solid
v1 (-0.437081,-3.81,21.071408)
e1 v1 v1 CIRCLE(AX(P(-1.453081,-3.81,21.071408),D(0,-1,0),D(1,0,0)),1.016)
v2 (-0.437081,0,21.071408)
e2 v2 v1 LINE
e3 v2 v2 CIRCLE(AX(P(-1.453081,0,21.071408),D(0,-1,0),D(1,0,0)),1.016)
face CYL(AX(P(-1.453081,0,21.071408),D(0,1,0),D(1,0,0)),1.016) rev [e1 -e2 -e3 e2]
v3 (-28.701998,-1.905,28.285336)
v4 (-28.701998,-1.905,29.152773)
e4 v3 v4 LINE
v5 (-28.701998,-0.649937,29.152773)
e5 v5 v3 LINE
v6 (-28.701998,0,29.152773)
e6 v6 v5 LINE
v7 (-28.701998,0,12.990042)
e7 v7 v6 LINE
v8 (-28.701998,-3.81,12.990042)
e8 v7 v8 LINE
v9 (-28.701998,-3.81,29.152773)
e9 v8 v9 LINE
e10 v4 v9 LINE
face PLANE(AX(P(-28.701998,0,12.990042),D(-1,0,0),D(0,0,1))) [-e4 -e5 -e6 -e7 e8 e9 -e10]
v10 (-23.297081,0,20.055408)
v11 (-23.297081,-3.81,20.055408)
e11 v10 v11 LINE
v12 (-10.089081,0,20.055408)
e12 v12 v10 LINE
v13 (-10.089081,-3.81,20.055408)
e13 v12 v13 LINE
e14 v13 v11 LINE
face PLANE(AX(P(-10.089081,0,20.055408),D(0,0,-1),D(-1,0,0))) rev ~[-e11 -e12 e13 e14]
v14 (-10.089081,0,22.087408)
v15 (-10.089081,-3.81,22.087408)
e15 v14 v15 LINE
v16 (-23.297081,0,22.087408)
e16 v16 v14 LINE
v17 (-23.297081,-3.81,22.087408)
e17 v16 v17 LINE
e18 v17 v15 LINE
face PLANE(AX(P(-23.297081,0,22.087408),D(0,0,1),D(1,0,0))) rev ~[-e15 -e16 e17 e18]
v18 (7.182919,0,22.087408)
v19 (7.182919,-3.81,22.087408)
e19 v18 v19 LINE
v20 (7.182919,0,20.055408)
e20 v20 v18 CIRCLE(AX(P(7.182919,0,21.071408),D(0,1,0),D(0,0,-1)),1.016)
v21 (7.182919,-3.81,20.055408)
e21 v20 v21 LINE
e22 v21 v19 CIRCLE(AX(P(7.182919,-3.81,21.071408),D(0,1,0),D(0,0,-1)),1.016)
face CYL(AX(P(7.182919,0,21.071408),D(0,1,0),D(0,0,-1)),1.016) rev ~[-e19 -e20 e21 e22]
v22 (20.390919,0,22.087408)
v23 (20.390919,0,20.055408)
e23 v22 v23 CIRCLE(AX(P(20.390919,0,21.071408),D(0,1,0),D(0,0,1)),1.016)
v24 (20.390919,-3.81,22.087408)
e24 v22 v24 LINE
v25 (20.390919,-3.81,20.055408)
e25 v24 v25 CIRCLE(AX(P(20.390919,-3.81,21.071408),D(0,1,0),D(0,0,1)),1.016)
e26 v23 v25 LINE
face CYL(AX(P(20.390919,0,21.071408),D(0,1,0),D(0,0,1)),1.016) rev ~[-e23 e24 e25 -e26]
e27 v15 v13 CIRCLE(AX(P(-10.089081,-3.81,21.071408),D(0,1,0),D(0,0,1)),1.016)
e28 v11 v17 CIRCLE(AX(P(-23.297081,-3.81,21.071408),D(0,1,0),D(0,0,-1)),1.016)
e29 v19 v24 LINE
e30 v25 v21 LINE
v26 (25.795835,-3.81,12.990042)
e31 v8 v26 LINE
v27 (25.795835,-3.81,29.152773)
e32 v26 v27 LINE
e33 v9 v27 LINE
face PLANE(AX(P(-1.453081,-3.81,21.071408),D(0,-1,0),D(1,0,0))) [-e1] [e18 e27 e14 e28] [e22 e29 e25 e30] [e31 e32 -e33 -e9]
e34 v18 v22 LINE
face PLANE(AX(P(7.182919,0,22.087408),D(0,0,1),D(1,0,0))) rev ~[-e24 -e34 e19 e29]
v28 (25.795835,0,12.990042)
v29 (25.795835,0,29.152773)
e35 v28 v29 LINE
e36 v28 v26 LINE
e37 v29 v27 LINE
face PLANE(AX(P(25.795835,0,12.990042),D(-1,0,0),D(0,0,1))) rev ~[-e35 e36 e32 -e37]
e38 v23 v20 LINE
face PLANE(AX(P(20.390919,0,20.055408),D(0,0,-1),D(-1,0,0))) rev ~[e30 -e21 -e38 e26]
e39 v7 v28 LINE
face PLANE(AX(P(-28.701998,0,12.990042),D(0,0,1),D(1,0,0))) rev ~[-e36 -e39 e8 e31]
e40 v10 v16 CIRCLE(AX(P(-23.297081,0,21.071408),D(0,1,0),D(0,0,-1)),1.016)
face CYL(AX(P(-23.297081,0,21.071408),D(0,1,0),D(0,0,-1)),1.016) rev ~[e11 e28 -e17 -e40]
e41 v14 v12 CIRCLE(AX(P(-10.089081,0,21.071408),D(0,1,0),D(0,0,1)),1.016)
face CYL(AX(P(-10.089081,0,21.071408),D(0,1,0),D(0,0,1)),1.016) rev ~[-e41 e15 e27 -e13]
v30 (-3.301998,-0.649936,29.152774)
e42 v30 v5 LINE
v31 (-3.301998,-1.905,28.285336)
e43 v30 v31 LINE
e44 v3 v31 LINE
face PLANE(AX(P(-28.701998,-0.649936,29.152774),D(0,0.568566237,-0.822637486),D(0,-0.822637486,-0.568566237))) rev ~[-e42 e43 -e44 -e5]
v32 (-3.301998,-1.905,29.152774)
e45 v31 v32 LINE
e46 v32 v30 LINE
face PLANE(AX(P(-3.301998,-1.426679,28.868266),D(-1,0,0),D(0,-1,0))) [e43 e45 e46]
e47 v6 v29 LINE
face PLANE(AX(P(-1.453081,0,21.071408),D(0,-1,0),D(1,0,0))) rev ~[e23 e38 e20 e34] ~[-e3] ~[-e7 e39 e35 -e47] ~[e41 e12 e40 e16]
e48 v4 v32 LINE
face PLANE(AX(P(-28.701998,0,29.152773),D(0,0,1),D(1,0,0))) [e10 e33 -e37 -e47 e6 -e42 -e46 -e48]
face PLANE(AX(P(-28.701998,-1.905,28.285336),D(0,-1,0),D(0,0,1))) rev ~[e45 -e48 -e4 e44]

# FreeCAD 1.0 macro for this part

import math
import FreeCAD as App
import Part
import Sketcher
Q = App.Units.Quantity


def add_polygon(sketch, points):
    """Adds a closed chain of lines whose ends are joined by coincident constraints."""
    first, n = sketch.GeometryCount, len(points)
    for a, b in zip(points, points[1:] + points[:1]):
        sketch.addGeometry(Part.LineSegment(App.Vector(*a, 0), App.Vector(*b, 0)), False)
    for i in range(n):
        sketch.addConstraint(Sketcher.Constraint("Coincident", first + i, 2, first + (i + 1) % n, 1))

doc = App.newDocument("Part")
body = doc.addObject("PartDesign::Body", "Body")

# Sketch on XZ plane
sketch1 = body.newObject("Sketcher::SketchObject", "Sketch")
sketch1.AttachmentSupport = (doc.getObject("XZ_Plane"), [""])
sketch1.MapMode = "FlatFace"
add_polygon(sketch1, [(-28.7, 29.2), (-28.7, 13), (25.8, 13), (25.8, 29.2)])  # lines 0-3
sketch1.addGeometry(Part.LineSegment(App.Vector(-10.1, 20.1, 0), App.Vector(-23.3, 20.1, 0)), False)  # 4
sketch1.addGeometry(Part.ArcOfCircle(Part.Circle(App.Vector(-23.3, 21.1, 0), App.Vector(0, 0, 1), 1), math.radians(90), math.radians(270)), False)  # 5
sketch1.addGeometry(Part.LineSegment(App.Vector(-23.3, 22.1, 0), App.Vector(-10.1, 22.1, 0)), False)  # 6
sketch1.addGeometry(Part.ArcOfCircle(Part.Circle(App.Vector(-10.1, 21.1, 0), App.Vector(0, 0, 1), 1), math.radians(-90), math.radians(90)), False)  # 7
sketch1.addGeometry(Part.Circle(App.Vector(-1.5, 21.1, 0), App.Vector(0, 0, 1), 1), False)  # 8
sketch1.addGeometry(Part.LineSegment(App.Vector(7.2, 22.1, 0), App.Vector(20.4, 22.1, 0)), False)  # 9
sketch1.addGeometry(Part.ArcOfCircle(Part.Circle(App.Vector(20.4, 21.1, 0), App.Vector(0, 0, 1), 1), math.radians(-90), math.radians(90)), False)  # 10
sketch1.addGeometry(Part.LineSegment(App.Vector(20.4, 20.1, 0), App.Vector(7.2, 20.1, 0)), False)  # 11
sketch1.addGeometry(Part.ArcOfCircle(Part.Circle(App.Vector(7.2, 21.1, 0), App.Vector(0, 0, 1), 1), math.radians(90), math.radians(270)), False)  # 12
sketch1.addConstraint([
    Sketcher.Constraint("Tangent", 4, 2, 5, 2),
    Sketcher.Constraint("Tangent", 5, 1, 6, 1),
    Sketcher.Constraint("Tangent", 6, 2, 7, 2),
    Sketcher.Constraint("Tangent", 7, 1, 4, 1),
    Sketcher.Constraint("Tangent", 9, 2, 10, 2),
    Sketcher.Constraint("Tangent", 10, 1, 11, 1),
    Sketcher.Constraint("Tangent", 11, 2, 12, 2),
    Sketcher.Constraint("Tangent", 12, 1, 9, 1),
    Sketcher.Constraint("Vertical", 0),
    Sketcher.Constraint("Horizontal", 1),
    Sketcher.Constraint("Vertical", 2),
    Sketcher.Constraint("Horizontal", 3),
    Sketcher.Constraint("Horizontal", 4),
    Sketcher.Constraint("Horizontal", 6),
    Sketcher.Constraint("Horizontal", 9),
    Sketcher.Constraint("Horizontal", 11),
    Sketcher.Constraint("Equal", 7, 8),
    Sketcher.Constraint("Equal", 8, 10),
    Sketcher.Constraint("Horizontal", 7, 3, 8, 3),
    Sketcher.Constraint("Horizontal", 8, 3, 10, 3),
    Sketcher.Constraint("Equal", 6, 9),
    Sketcher.Constraint("Diameter", 8, Q("0.08 in")),
    Sketcher.Constraint("DistanceX", 4, 2, 4, 1, Q("0.52 in")),
    Sketcher.Constraint("DistanceX", 7, 3, 10, 3, Q("1.2 in")),
    Sketcher.Constraint("DistanceX", 0, 2, -1, 1, Q("1.1299999 in")),
    Sketcher.Constraint("DistanceX", 7, 3, 8, 3, Q("0.34 in")),
    Sketcher.Constraint("DistanceY", 0, 2, 0, 1, Q("16.162731 mm")),
    Sketcher.Constraint("DistanceX", 1, 1, 1, 2, Q("54.497833 mm")),
    Sketcher.Constraint("DistanceX", 5, 3, -1, 1, Q("23.297081 mm")),
    Sketcher.Constraint("DistanceY", -1, 1, 5, 3, Q("21.071408 mm")),
    Sketcher.Constraint("DistanceY", -1, 1, 0, 2, Q("12.990042 mm")),
])
pad1 = body.newObject("PartDesign::Pad", "Pad")
pad1.Profile = sketch1
pad1.Length = Q("0.15 in")

# Sketch on YZ plane
sketch2 = body.newObject("Sketcher::SketchObject", "Sketch001")
sketch2.AttachmentSupport = (doc.getObject("YZ_Plane"), [""])
sketch2.MapMode = "FlatFace"
sketch2.AttachmentOffset = App.Placement(App.Vector(0, 0, -1.1299999 * 25.4), App.Rotation())
add_polygon(sketch2, [(-1.9, 28.3), (-1.9, 29.2), (-0.6, 29.2)])  # lines 0-2
sketch2.addConstraint([
    Sketcher.Constraint("Vertical", 0),
    Sketcher.Constraint("Horizontal", 1),
    Sketcher.Constraint("DistanceX", 0, 2, -1, 1, Q("0.075 in")),
    Sketcher.Constraint("Distance", 2, Q("1.525659 mm")),
    Sketcher.Constraint("DistanceX", 1, 1, 1, 2, Q("1.255064 mm")),
    Sketcher.Constraint("DistanceY", -1, 1, 0, 2, Q("29.152774 mm")),
])
pocket1 = body.newObject("PartDesign::Pocket", "Pocket")
pocket1.Profile = sketch2
pocket1.Length = Q("1 in")
pocket1.Reversed = True

doc.recompute()
